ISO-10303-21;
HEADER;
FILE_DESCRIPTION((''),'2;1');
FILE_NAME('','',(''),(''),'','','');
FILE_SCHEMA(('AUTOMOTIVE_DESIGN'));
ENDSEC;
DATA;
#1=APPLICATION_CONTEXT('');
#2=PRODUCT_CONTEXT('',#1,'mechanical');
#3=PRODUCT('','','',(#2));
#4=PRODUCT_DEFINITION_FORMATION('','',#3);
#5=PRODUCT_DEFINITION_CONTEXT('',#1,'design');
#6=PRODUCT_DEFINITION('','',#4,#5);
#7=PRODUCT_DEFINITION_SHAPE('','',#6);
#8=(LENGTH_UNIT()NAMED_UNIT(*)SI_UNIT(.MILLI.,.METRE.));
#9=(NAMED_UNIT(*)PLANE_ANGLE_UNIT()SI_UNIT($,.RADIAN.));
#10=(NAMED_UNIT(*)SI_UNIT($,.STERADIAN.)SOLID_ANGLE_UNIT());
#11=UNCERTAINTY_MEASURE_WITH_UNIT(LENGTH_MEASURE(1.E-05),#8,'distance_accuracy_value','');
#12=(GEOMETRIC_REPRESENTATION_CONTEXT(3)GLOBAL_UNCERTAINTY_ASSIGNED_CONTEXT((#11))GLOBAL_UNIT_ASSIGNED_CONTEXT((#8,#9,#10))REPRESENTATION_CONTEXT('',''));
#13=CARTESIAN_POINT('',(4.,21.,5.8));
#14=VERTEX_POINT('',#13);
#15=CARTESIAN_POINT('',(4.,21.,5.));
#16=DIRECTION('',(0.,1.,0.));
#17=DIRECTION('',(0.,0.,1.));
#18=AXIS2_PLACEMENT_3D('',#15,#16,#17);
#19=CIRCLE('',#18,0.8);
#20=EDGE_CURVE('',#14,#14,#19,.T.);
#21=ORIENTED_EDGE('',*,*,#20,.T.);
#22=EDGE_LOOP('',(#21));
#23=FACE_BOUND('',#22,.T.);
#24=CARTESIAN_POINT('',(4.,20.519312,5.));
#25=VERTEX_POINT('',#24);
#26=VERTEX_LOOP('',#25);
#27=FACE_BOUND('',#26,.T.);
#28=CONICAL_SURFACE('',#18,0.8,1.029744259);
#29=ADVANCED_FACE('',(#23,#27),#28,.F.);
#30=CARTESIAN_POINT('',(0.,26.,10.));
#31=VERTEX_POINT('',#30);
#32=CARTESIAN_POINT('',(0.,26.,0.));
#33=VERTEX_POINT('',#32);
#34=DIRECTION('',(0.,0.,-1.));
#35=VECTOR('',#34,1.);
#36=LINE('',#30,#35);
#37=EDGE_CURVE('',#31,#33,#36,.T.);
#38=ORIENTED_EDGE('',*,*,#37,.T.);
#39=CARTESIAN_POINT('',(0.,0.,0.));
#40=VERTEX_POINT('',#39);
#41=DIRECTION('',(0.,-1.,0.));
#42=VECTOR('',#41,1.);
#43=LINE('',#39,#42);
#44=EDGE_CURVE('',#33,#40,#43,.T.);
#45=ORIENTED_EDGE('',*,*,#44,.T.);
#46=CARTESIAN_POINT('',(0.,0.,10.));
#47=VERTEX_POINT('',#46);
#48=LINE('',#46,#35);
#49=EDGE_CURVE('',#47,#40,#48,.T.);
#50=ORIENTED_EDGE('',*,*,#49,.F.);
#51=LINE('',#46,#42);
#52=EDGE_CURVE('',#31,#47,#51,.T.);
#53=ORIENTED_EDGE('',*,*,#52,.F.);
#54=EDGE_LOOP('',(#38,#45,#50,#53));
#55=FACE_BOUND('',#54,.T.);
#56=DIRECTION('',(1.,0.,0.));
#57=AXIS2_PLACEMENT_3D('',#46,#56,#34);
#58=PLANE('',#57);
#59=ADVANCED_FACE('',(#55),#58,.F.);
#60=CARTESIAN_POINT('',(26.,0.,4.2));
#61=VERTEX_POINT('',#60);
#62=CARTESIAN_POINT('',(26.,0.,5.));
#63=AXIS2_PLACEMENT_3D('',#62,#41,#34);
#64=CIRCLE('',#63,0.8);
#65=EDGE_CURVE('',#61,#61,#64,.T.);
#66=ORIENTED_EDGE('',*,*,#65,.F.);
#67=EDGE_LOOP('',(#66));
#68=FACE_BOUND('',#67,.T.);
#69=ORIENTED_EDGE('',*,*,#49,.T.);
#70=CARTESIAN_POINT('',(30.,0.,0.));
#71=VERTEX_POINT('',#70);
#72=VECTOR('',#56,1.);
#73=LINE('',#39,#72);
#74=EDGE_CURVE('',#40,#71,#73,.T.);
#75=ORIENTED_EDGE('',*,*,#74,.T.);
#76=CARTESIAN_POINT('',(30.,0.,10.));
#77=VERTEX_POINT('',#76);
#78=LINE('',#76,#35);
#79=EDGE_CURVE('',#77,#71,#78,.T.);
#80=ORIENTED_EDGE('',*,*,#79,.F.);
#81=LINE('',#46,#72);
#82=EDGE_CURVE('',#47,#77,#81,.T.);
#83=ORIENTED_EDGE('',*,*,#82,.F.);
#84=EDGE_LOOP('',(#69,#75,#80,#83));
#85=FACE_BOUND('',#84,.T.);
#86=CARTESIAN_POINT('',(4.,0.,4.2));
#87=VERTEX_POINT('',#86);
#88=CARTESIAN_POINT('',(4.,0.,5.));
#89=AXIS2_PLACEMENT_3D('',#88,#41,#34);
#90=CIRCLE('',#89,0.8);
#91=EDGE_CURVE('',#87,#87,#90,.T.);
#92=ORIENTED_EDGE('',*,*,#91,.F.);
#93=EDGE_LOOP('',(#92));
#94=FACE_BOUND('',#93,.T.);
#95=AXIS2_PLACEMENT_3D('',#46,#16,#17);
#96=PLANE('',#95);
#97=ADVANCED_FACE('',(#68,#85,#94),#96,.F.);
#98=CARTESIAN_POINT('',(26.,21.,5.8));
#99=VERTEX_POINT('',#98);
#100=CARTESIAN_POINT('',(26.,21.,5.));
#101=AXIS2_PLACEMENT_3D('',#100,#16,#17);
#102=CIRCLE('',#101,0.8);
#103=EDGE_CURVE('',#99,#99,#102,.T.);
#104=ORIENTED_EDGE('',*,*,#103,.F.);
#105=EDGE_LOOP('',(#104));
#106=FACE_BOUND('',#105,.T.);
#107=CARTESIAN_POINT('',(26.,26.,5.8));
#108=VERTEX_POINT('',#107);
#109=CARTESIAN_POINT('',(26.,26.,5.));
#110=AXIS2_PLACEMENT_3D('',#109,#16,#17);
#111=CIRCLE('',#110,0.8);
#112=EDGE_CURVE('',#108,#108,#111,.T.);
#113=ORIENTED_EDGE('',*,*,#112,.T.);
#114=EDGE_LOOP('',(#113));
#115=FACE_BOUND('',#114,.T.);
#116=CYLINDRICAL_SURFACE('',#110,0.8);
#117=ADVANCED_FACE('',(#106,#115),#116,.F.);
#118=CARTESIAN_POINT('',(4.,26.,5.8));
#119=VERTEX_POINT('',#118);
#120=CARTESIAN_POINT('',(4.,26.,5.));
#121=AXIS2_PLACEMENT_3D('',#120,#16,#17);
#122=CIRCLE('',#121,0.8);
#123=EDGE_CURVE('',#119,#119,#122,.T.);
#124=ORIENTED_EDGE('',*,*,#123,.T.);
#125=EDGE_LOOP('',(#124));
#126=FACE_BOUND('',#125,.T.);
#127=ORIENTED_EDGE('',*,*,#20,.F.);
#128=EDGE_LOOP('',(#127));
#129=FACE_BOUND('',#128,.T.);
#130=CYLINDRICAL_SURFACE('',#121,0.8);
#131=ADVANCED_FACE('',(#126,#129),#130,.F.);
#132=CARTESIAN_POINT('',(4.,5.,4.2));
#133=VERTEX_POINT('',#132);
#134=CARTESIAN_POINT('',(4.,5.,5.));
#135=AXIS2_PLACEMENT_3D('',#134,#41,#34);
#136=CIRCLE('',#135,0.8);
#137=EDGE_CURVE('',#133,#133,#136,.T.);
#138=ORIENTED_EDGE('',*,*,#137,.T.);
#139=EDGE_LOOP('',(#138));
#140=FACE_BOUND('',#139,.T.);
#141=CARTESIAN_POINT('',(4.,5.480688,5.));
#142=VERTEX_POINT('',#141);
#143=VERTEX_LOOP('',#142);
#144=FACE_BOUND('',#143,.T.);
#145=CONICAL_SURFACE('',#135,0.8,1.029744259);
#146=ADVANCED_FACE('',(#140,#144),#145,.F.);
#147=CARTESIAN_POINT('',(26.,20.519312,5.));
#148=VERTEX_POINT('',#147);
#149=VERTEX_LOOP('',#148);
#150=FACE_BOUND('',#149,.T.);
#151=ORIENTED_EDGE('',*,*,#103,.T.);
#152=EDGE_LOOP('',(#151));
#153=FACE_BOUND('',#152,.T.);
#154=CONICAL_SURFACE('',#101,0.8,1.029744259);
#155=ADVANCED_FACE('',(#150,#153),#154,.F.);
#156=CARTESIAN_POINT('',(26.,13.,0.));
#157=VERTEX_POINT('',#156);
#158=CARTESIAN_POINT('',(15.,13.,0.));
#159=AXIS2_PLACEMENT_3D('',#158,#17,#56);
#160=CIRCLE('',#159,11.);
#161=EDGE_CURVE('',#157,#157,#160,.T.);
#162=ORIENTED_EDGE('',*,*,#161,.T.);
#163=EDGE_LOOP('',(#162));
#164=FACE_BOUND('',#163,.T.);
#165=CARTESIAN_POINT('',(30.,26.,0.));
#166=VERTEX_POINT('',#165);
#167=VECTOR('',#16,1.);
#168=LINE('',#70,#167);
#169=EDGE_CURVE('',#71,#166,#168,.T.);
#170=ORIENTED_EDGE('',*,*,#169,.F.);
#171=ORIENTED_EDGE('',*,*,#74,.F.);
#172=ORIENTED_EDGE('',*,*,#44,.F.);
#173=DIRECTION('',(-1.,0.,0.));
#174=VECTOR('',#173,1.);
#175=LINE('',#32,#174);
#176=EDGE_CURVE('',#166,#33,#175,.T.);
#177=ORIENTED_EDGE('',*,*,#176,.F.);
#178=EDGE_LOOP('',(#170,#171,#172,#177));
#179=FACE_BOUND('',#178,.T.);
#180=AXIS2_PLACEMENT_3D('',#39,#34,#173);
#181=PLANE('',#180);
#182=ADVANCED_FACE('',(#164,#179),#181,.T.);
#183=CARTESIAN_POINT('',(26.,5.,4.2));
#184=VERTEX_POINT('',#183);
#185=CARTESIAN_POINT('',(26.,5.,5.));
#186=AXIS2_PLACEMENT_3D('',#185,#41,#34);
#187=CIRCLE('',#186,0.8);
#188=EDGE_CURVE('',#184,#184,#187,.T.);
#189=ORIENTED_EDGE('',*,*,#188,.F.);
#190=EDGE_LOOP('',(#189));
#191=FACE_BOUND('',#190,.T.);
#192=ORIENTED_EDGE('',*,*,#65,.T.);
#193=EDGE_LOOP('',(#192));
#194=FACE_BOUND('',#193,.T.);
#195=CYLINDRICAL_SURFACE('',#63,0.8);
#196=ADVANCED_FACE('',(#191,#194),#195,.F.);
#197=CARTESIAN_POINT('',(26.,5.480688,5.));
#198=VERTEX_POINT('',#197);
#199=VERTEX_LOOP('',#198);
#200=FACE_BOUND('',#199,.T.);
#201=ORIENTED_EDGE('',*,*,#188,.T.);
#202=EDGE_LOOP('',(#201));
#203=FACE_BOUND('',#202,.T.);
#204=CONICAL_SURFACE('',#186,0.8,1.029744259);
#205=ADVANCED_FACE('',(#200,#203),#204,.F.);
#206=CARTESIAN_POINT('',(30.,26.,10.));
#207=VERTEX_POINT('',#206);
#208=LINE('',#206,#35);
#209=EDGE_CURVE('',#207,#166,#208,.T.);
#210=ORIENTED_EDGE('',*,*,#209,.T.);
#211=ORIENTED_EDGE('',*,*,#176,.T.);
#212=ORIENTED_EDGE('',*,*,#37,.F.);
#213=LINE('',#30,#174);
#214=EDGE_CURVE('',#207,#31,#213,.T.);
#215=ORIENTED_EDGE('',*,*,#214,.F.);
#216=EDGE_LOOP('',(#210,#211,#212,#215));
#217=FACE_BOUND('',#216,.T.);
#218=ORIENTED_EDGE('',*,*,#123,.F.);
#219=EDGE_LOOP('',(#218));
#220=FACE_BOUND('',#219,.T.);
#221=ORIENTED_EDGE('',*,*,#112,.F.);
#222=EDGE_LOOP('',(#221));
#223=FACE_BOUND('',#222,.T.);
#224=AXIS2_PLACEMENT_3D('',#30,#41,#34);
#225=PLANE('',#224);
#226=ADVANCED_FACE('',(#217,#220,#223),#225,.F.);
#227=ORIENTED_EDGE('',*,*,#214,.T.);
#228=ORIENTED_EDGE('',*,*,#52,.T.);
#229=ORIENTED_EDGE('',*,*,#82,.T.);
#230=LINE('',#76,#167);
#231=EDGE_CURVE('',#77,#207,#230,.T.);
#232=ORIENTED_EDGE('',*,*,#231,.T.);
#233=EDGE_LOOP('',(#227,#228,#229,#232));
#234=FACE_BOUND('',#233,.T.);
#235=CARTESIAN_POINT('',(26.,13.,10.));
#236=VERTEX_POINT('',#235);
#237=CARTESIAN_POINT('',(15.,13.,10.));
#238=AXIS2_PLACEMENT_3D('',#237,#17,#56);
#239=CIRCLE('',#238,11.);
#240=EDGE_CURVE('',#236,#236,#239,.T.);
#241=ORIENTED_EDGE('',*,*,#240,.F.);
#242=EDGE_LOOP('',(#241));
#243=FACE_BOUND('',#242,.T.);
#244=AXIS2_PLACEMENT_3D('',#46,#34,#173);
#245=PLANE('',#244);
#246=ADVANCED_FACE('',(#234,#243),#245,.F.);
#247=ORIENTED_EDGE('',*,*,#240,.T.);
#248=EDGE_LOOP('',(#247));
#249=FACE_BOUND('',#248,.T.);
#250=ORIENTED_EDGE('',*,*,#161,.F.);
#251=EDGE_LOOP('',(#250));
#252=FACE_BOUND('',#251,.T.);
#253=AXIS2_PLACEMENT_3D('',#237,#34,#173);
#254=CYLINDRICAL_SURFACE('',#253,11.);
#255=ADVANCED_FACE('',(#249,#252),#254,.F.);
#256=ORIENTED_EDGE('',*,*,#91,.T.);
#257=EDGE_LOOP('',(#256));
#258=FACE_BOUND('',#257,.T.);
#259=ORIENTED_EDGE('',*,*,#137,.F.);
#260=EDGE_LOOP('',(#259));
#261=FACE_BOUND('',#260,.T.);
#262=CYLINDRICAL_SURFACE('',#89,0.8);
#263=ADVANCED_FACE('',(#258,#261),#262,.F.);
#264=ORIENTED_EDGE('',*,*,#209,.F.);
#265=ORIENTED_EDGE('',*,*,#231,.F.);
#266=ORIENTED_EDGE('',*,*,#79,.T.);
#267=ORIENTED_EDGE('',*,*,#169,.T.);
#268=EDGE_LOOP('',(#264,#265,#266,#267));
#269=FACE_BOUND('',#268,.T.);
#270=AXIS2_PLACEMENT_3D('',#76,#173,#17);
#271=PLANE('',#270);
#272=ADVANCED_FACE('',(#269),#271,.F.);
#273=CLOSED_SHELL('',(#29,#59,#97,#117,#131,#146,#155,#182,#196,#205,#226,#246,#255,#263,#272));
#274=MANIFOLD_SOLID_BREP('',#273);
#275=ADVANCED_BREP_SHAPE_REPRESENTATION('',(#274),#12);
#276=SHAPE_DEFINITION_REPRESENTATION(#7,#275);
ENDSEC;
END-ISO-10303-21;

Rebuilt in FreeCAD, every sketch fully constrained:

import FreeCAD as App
import Part
import Sketcher


def add_polygon(sketch, points):
    """Adds a closed chain of lines whose ends are joined by coincident constraints."""
    first, n = sketch.GeometryCount, len(points)
    for a, b in zip(points, points[1:] + points[:1]):
        sketch.addGeometry(Part.LineSegment(App.Vector(*a, 0), App.Vector(*b, 0)), False)
    for i in range(n):
        sketch.addConstraint(Sketcher.Constraint("Coincident", first + i, 2, first + (i + 1) % n, 1))

doc = App.newDocument("Part")
body = doc.addObject("PartDesign::Body", "Body")

# Sketch on XY plane
sketch1 = body.newObject("Sketcher::SketchObject", "Sketch")
sketch1.AttachmentSupport = (doc.getObject("XY_Plane"), [""])
sketch1.MapMode = "FlatFace"
add_polygon(sketch1, [(0, 26), (0, 0), (30, 0), (30, 26)])  # lines 0-3
sketch1.addGeometry(Part.Circle(App.Vector(15, 13, 0), App.Vector(0, 0, 1), 11), False)  # 4
sketch1.addConstraint(Sketcher.Constraint("Vertical", 0))
sketch1.addConstraint(Sketcher.Constraint("Horizontal", 1))
sketch1.addConstraint(Sketcher.Constraint("Vertical", 2))
sketch1.addConstraint(Sketcher.Constraint("Horizontal", 3))
sketch1.addConstraint(Sketcher.Constraint("Coincident", 0, 2, -1, 1))
sketch1.addConstraint(Sketcher.Constraint("Diameter", 4, 22.0))
sketch1.addConstraint(Sketcher.Constraint("DistanceX", 1, 1, 1, 2, 30.0))
sketch1.addConstraint(Sketcher.Constraint("DistanceY", 0, 2, 0, 1, 26.0))
sketch1.addConstraint(Sketcher.Constraint("DistanceX", -1, 1, 4, 3, 15.0))
sketch1.addConstraint(Sketcher.Constraint("DistanceY", -1, 1, 4, 3, 13.0))
pad1 = body.newObject("PartDesign::Pad", "Pad")
pad1.Profile = sketch1
pad1.Length = 10

# Sketch on XZ plane
sketch2 = body.newObject("Sketcher::SketchObject", "Sketch001")
sketch2.AttachmentSupport = (doc.getObject("XZ_Plane"), [""])
sketch2.MapMode = "FlatFace"
sketch2.AttachmentOffset = App.Placement(App.Vector(0, 0, -26), App.Rotation())
sketch2.addGeometry(Part.Circle(App.Vector(4, 5, 0), App.Vector(0, 0, 1), 0.8), False)
sketch2.addGeometry(Part.Circle(App.Vector(26, 5, 0), App.Vector(0, 0, 1), 0.8), False)
sketch2.addConstraint(Sketcher.Constraint("Equal", 0, 1))
sketch2.addConstraint(Sketcher.Constraint("Horizontal", 0, 3, 1, 3))
sketch2.addConstraint(Sketcher.Constraint("Diameter", 0, 1.6))
sketch2.addConstraint(Sketcher.Constraint("DistanceX", -1, 1, 0, 3, 4.0))
sketch2.addConstraint(Sketcher.Constraint("DistanceY", -1, 1, 0, 3, 5.0))
sketch2.addConstraint(Sketcher.Constraint("DistanceX", -1, 1, 1, 3, 26.0))
doc.recompute()
hole = body.newObject("PartDesign::Hole", "Hole")
hole.Profile = sketch2
hole.ThreadType = "None"
hole.Diameter = 1.6
hole.DepthType = "Dimension"
hole.Depth = 5
hole.DrillPoint = "Angled"
hole.DrillPointAngle = 118
hole.Reversed = True

# Sketch on XZ plane
sketch3 = body.newObject("Sketcher::SketchObject", "Sketch002")
sketch3.AttachmentSupport = (doc.getObject("XZ_Plane"), [""])
sketch3.MapMode = "FlatFace"
sketch3.addGeometry(Part.Circle(App.Vector(4, 5, 0), App.Vector(0, 0, 1), 0.8), False)
sketch3.addGeometry(Part.Circle(App.Vector(26, 5, 0), App.Vector(0, 0, 1), 0.8), False)
sketch3.addConstraint(Sketcher.Constraint("Equal", 0, 1))
sketch3.addConstraint(Sketcher.Constraint("Horizontal", 0, 3, 1, 3))
sketch3.addConstraint(Sketcher.Constraint("Diameter", 0, 1.6))
sketch3.addConstraint(Sketcher.Constraint("DistanceX", -1, 1, 0, 3, 4.0))
sketch3.addConstraint(Sketcher.Constraint("DistanceY", -1, 1, 0, 3, 5.0))
sketch3.addConstraint(Sketcher.Constraint("DistanceX", -1, 1, 1, 3, 26.0))
doc.recompute()
hole2 = body.newObject("PartDesign::Hole", "Hole001")
hole2.Profile = sketch3
hole2.ThreadType = "None"
hole2.Diameter = 1.6
hole2.DepthType = "Dimension"
hole2.Depth = 5
hole2.DrillPoint = "Angled"
hole2.DrillPointAngle = 118

doc.recompute()
